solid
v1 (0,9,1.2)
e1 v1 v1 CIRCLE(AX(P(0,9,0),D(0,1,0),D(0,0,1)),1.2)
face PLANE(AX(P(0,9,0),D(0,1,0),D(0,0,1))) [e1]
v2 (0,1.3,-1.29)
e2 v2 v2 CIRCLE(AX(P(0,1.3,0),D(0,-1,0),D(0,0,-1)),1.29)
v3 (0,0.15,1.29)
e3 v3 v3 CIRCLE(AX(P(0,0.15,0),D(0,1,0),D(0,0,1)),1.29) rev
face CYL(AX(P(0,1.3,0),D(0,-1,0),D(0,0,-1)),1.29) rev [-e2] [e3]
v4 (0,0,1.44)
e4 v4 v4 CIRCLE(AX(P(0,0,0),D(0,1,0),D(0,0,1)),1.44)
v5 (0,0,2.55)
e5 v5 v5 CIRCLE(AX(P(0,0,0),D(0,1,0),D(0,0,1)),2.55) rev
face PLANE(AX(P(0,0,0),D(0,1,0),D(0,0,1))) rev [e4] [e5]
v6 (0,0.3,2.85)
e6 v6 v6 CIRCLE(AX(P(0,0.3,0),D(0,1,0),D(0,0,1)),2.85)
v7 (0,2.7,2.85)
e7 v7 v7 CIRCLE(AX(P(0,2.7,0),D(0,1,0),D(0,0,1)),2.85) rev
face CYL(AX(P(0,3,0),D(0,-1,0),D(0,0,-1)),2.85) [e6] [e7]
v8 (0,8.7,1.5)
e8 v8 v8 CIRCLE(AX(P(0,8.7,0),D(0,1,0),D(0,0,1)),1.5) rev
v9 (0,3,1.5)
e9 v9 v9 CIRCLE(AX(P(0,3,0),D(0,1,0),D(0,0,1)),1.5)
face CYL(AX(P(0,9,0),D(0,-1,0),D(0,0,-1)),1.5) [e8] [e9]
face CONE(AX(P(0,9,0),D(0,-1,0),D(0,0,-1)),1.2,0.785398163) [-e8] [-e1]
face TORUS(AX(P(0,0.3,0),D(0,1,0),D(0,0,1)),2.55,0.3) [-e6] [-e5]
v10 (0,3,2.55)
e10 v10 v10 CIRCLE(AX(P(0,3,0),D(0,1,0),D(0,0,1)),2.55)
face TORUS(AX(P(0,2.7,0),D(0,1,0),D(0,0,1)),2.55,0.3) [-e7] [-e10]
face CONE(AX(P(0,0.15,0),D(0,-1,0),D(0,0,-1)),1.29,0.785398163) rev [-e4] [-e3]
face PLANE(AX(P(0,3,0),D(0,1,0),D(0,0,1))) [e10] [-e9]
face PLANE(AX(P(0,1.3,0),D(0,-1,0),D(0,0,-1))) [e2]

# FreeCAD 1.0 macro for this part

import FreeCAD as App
import Part
import Sketcher

V = App.Vector


def edges_at(feature, points):
    """Names of the edges that pass closest to the given points."""
    edges = feature.Shape.Edges
    near = lambda p: min(range(len(edges)), key=lambda i: edges[i].distToShape(Part.Vertex(*p))[0])
    return sorted({f"Edge{near(p) + 1}" for p in points})

doc = App.newDocument("Part")
body = doc.addObject("PartDesign::Body", "Body")

# Sketch on XZ plane
sketch1 = body.newObject("Sketcher::SketchObject", "Sketch")
sketch1.AttachmentSupport = (doc.getObject("XZ_Plane"), [""])
sketch1.MapMode = "FlatFace"
sketch1.addGeometry(Part.Circle(V(0, 0, 0), V(0, 0, 1), 2.9), False)
sketch1.addConstraint(Sketcher.Constraint("Coincident", 0, 3, -1, 1))
sketch1.addConstraint(Sketcher.Constraint("Diameter", 0, 5.7))
pad1 = body.newObject("PartDesign::Pad", "Pad")
pad1.Profile = sketch1
pad1.Length = 3
pad1.Reversed = True

# Sketch on XZ plane
sketch2 = body.newObject("Sketcher::SketchObject", "Sketch001")
sketch2.AttachmentSupport = (doc.getObject("XZ_Plane"), [""])
sketch2.MapMode = "FlatFace"
sketch2.AttachmentOffset = App.Placement(V(0, 0, -3), App.Rotation())
sketch2.addGeometry(Part.Circle(V(0, 0, 0), V(0, 0, 1), 1.5), False)
sketch2.addConstraint(Sketcher.Constraint("Coincident", 0, 3, -1, 1))
sketch2.addConstraint(Sketcher.Constraint("Diameter", 0, 3.0))
pad2 = body.newObject("PartDesign::Pad", "Pad001")
pad2.Profile = sketch2
pad2.Length = 6
pad2.Reversed = True

# Sketch on XZ plane
sketch3 = body.newObject("Sketcher::SketchObject", "Sketch002")
sketch3.AttachmentSupport = (doc.getObject("XZ_Plane"), [""])
sketch3.MapMode = "FlatFace"
sketch3.addGeometry(Part.Circle(V(0, 0, 0), V(0, 0, 1), 1.3), False)
sketch3.addConstraint(Sketcher.Constraint("Coincident", 0, 3, -1, 1))
sketch3.addConstraint(Sketcher.Constraint("Diameter", 0, 2.58))
pocket1 = body.newObject("PartDesign::Pocket", "Pocket")
pocket1.Profile = sketch3
pocket1.Length = 1.3
doc.recompute()

fillet = body.newObject("PartDesign::Fillet", "Fillet")
fillet.Base = (pocket1, edges_at(pocket1, [(0, 0, -2.85), (0, 3, -2.85)]))
fillet.Radius = 0.3
doc.recompute()

chamfer = body.newObject("PartDesign::Chamfer", "Chamfer")
chamfer.Base = (fillet, edges_at(fillet, [(0, 9, -1.5)]))
chamfer.Size = 0.3
doc.recompute()

chamfer2 = body.newObject("PartDesign::Chamfer", "Chamfer001")
chamfer2.Base = (chamfer, edges_at(chamfer, [(0, 0, 1.29)]))
chamfer2.Size = 0.15

doc.recompute()
